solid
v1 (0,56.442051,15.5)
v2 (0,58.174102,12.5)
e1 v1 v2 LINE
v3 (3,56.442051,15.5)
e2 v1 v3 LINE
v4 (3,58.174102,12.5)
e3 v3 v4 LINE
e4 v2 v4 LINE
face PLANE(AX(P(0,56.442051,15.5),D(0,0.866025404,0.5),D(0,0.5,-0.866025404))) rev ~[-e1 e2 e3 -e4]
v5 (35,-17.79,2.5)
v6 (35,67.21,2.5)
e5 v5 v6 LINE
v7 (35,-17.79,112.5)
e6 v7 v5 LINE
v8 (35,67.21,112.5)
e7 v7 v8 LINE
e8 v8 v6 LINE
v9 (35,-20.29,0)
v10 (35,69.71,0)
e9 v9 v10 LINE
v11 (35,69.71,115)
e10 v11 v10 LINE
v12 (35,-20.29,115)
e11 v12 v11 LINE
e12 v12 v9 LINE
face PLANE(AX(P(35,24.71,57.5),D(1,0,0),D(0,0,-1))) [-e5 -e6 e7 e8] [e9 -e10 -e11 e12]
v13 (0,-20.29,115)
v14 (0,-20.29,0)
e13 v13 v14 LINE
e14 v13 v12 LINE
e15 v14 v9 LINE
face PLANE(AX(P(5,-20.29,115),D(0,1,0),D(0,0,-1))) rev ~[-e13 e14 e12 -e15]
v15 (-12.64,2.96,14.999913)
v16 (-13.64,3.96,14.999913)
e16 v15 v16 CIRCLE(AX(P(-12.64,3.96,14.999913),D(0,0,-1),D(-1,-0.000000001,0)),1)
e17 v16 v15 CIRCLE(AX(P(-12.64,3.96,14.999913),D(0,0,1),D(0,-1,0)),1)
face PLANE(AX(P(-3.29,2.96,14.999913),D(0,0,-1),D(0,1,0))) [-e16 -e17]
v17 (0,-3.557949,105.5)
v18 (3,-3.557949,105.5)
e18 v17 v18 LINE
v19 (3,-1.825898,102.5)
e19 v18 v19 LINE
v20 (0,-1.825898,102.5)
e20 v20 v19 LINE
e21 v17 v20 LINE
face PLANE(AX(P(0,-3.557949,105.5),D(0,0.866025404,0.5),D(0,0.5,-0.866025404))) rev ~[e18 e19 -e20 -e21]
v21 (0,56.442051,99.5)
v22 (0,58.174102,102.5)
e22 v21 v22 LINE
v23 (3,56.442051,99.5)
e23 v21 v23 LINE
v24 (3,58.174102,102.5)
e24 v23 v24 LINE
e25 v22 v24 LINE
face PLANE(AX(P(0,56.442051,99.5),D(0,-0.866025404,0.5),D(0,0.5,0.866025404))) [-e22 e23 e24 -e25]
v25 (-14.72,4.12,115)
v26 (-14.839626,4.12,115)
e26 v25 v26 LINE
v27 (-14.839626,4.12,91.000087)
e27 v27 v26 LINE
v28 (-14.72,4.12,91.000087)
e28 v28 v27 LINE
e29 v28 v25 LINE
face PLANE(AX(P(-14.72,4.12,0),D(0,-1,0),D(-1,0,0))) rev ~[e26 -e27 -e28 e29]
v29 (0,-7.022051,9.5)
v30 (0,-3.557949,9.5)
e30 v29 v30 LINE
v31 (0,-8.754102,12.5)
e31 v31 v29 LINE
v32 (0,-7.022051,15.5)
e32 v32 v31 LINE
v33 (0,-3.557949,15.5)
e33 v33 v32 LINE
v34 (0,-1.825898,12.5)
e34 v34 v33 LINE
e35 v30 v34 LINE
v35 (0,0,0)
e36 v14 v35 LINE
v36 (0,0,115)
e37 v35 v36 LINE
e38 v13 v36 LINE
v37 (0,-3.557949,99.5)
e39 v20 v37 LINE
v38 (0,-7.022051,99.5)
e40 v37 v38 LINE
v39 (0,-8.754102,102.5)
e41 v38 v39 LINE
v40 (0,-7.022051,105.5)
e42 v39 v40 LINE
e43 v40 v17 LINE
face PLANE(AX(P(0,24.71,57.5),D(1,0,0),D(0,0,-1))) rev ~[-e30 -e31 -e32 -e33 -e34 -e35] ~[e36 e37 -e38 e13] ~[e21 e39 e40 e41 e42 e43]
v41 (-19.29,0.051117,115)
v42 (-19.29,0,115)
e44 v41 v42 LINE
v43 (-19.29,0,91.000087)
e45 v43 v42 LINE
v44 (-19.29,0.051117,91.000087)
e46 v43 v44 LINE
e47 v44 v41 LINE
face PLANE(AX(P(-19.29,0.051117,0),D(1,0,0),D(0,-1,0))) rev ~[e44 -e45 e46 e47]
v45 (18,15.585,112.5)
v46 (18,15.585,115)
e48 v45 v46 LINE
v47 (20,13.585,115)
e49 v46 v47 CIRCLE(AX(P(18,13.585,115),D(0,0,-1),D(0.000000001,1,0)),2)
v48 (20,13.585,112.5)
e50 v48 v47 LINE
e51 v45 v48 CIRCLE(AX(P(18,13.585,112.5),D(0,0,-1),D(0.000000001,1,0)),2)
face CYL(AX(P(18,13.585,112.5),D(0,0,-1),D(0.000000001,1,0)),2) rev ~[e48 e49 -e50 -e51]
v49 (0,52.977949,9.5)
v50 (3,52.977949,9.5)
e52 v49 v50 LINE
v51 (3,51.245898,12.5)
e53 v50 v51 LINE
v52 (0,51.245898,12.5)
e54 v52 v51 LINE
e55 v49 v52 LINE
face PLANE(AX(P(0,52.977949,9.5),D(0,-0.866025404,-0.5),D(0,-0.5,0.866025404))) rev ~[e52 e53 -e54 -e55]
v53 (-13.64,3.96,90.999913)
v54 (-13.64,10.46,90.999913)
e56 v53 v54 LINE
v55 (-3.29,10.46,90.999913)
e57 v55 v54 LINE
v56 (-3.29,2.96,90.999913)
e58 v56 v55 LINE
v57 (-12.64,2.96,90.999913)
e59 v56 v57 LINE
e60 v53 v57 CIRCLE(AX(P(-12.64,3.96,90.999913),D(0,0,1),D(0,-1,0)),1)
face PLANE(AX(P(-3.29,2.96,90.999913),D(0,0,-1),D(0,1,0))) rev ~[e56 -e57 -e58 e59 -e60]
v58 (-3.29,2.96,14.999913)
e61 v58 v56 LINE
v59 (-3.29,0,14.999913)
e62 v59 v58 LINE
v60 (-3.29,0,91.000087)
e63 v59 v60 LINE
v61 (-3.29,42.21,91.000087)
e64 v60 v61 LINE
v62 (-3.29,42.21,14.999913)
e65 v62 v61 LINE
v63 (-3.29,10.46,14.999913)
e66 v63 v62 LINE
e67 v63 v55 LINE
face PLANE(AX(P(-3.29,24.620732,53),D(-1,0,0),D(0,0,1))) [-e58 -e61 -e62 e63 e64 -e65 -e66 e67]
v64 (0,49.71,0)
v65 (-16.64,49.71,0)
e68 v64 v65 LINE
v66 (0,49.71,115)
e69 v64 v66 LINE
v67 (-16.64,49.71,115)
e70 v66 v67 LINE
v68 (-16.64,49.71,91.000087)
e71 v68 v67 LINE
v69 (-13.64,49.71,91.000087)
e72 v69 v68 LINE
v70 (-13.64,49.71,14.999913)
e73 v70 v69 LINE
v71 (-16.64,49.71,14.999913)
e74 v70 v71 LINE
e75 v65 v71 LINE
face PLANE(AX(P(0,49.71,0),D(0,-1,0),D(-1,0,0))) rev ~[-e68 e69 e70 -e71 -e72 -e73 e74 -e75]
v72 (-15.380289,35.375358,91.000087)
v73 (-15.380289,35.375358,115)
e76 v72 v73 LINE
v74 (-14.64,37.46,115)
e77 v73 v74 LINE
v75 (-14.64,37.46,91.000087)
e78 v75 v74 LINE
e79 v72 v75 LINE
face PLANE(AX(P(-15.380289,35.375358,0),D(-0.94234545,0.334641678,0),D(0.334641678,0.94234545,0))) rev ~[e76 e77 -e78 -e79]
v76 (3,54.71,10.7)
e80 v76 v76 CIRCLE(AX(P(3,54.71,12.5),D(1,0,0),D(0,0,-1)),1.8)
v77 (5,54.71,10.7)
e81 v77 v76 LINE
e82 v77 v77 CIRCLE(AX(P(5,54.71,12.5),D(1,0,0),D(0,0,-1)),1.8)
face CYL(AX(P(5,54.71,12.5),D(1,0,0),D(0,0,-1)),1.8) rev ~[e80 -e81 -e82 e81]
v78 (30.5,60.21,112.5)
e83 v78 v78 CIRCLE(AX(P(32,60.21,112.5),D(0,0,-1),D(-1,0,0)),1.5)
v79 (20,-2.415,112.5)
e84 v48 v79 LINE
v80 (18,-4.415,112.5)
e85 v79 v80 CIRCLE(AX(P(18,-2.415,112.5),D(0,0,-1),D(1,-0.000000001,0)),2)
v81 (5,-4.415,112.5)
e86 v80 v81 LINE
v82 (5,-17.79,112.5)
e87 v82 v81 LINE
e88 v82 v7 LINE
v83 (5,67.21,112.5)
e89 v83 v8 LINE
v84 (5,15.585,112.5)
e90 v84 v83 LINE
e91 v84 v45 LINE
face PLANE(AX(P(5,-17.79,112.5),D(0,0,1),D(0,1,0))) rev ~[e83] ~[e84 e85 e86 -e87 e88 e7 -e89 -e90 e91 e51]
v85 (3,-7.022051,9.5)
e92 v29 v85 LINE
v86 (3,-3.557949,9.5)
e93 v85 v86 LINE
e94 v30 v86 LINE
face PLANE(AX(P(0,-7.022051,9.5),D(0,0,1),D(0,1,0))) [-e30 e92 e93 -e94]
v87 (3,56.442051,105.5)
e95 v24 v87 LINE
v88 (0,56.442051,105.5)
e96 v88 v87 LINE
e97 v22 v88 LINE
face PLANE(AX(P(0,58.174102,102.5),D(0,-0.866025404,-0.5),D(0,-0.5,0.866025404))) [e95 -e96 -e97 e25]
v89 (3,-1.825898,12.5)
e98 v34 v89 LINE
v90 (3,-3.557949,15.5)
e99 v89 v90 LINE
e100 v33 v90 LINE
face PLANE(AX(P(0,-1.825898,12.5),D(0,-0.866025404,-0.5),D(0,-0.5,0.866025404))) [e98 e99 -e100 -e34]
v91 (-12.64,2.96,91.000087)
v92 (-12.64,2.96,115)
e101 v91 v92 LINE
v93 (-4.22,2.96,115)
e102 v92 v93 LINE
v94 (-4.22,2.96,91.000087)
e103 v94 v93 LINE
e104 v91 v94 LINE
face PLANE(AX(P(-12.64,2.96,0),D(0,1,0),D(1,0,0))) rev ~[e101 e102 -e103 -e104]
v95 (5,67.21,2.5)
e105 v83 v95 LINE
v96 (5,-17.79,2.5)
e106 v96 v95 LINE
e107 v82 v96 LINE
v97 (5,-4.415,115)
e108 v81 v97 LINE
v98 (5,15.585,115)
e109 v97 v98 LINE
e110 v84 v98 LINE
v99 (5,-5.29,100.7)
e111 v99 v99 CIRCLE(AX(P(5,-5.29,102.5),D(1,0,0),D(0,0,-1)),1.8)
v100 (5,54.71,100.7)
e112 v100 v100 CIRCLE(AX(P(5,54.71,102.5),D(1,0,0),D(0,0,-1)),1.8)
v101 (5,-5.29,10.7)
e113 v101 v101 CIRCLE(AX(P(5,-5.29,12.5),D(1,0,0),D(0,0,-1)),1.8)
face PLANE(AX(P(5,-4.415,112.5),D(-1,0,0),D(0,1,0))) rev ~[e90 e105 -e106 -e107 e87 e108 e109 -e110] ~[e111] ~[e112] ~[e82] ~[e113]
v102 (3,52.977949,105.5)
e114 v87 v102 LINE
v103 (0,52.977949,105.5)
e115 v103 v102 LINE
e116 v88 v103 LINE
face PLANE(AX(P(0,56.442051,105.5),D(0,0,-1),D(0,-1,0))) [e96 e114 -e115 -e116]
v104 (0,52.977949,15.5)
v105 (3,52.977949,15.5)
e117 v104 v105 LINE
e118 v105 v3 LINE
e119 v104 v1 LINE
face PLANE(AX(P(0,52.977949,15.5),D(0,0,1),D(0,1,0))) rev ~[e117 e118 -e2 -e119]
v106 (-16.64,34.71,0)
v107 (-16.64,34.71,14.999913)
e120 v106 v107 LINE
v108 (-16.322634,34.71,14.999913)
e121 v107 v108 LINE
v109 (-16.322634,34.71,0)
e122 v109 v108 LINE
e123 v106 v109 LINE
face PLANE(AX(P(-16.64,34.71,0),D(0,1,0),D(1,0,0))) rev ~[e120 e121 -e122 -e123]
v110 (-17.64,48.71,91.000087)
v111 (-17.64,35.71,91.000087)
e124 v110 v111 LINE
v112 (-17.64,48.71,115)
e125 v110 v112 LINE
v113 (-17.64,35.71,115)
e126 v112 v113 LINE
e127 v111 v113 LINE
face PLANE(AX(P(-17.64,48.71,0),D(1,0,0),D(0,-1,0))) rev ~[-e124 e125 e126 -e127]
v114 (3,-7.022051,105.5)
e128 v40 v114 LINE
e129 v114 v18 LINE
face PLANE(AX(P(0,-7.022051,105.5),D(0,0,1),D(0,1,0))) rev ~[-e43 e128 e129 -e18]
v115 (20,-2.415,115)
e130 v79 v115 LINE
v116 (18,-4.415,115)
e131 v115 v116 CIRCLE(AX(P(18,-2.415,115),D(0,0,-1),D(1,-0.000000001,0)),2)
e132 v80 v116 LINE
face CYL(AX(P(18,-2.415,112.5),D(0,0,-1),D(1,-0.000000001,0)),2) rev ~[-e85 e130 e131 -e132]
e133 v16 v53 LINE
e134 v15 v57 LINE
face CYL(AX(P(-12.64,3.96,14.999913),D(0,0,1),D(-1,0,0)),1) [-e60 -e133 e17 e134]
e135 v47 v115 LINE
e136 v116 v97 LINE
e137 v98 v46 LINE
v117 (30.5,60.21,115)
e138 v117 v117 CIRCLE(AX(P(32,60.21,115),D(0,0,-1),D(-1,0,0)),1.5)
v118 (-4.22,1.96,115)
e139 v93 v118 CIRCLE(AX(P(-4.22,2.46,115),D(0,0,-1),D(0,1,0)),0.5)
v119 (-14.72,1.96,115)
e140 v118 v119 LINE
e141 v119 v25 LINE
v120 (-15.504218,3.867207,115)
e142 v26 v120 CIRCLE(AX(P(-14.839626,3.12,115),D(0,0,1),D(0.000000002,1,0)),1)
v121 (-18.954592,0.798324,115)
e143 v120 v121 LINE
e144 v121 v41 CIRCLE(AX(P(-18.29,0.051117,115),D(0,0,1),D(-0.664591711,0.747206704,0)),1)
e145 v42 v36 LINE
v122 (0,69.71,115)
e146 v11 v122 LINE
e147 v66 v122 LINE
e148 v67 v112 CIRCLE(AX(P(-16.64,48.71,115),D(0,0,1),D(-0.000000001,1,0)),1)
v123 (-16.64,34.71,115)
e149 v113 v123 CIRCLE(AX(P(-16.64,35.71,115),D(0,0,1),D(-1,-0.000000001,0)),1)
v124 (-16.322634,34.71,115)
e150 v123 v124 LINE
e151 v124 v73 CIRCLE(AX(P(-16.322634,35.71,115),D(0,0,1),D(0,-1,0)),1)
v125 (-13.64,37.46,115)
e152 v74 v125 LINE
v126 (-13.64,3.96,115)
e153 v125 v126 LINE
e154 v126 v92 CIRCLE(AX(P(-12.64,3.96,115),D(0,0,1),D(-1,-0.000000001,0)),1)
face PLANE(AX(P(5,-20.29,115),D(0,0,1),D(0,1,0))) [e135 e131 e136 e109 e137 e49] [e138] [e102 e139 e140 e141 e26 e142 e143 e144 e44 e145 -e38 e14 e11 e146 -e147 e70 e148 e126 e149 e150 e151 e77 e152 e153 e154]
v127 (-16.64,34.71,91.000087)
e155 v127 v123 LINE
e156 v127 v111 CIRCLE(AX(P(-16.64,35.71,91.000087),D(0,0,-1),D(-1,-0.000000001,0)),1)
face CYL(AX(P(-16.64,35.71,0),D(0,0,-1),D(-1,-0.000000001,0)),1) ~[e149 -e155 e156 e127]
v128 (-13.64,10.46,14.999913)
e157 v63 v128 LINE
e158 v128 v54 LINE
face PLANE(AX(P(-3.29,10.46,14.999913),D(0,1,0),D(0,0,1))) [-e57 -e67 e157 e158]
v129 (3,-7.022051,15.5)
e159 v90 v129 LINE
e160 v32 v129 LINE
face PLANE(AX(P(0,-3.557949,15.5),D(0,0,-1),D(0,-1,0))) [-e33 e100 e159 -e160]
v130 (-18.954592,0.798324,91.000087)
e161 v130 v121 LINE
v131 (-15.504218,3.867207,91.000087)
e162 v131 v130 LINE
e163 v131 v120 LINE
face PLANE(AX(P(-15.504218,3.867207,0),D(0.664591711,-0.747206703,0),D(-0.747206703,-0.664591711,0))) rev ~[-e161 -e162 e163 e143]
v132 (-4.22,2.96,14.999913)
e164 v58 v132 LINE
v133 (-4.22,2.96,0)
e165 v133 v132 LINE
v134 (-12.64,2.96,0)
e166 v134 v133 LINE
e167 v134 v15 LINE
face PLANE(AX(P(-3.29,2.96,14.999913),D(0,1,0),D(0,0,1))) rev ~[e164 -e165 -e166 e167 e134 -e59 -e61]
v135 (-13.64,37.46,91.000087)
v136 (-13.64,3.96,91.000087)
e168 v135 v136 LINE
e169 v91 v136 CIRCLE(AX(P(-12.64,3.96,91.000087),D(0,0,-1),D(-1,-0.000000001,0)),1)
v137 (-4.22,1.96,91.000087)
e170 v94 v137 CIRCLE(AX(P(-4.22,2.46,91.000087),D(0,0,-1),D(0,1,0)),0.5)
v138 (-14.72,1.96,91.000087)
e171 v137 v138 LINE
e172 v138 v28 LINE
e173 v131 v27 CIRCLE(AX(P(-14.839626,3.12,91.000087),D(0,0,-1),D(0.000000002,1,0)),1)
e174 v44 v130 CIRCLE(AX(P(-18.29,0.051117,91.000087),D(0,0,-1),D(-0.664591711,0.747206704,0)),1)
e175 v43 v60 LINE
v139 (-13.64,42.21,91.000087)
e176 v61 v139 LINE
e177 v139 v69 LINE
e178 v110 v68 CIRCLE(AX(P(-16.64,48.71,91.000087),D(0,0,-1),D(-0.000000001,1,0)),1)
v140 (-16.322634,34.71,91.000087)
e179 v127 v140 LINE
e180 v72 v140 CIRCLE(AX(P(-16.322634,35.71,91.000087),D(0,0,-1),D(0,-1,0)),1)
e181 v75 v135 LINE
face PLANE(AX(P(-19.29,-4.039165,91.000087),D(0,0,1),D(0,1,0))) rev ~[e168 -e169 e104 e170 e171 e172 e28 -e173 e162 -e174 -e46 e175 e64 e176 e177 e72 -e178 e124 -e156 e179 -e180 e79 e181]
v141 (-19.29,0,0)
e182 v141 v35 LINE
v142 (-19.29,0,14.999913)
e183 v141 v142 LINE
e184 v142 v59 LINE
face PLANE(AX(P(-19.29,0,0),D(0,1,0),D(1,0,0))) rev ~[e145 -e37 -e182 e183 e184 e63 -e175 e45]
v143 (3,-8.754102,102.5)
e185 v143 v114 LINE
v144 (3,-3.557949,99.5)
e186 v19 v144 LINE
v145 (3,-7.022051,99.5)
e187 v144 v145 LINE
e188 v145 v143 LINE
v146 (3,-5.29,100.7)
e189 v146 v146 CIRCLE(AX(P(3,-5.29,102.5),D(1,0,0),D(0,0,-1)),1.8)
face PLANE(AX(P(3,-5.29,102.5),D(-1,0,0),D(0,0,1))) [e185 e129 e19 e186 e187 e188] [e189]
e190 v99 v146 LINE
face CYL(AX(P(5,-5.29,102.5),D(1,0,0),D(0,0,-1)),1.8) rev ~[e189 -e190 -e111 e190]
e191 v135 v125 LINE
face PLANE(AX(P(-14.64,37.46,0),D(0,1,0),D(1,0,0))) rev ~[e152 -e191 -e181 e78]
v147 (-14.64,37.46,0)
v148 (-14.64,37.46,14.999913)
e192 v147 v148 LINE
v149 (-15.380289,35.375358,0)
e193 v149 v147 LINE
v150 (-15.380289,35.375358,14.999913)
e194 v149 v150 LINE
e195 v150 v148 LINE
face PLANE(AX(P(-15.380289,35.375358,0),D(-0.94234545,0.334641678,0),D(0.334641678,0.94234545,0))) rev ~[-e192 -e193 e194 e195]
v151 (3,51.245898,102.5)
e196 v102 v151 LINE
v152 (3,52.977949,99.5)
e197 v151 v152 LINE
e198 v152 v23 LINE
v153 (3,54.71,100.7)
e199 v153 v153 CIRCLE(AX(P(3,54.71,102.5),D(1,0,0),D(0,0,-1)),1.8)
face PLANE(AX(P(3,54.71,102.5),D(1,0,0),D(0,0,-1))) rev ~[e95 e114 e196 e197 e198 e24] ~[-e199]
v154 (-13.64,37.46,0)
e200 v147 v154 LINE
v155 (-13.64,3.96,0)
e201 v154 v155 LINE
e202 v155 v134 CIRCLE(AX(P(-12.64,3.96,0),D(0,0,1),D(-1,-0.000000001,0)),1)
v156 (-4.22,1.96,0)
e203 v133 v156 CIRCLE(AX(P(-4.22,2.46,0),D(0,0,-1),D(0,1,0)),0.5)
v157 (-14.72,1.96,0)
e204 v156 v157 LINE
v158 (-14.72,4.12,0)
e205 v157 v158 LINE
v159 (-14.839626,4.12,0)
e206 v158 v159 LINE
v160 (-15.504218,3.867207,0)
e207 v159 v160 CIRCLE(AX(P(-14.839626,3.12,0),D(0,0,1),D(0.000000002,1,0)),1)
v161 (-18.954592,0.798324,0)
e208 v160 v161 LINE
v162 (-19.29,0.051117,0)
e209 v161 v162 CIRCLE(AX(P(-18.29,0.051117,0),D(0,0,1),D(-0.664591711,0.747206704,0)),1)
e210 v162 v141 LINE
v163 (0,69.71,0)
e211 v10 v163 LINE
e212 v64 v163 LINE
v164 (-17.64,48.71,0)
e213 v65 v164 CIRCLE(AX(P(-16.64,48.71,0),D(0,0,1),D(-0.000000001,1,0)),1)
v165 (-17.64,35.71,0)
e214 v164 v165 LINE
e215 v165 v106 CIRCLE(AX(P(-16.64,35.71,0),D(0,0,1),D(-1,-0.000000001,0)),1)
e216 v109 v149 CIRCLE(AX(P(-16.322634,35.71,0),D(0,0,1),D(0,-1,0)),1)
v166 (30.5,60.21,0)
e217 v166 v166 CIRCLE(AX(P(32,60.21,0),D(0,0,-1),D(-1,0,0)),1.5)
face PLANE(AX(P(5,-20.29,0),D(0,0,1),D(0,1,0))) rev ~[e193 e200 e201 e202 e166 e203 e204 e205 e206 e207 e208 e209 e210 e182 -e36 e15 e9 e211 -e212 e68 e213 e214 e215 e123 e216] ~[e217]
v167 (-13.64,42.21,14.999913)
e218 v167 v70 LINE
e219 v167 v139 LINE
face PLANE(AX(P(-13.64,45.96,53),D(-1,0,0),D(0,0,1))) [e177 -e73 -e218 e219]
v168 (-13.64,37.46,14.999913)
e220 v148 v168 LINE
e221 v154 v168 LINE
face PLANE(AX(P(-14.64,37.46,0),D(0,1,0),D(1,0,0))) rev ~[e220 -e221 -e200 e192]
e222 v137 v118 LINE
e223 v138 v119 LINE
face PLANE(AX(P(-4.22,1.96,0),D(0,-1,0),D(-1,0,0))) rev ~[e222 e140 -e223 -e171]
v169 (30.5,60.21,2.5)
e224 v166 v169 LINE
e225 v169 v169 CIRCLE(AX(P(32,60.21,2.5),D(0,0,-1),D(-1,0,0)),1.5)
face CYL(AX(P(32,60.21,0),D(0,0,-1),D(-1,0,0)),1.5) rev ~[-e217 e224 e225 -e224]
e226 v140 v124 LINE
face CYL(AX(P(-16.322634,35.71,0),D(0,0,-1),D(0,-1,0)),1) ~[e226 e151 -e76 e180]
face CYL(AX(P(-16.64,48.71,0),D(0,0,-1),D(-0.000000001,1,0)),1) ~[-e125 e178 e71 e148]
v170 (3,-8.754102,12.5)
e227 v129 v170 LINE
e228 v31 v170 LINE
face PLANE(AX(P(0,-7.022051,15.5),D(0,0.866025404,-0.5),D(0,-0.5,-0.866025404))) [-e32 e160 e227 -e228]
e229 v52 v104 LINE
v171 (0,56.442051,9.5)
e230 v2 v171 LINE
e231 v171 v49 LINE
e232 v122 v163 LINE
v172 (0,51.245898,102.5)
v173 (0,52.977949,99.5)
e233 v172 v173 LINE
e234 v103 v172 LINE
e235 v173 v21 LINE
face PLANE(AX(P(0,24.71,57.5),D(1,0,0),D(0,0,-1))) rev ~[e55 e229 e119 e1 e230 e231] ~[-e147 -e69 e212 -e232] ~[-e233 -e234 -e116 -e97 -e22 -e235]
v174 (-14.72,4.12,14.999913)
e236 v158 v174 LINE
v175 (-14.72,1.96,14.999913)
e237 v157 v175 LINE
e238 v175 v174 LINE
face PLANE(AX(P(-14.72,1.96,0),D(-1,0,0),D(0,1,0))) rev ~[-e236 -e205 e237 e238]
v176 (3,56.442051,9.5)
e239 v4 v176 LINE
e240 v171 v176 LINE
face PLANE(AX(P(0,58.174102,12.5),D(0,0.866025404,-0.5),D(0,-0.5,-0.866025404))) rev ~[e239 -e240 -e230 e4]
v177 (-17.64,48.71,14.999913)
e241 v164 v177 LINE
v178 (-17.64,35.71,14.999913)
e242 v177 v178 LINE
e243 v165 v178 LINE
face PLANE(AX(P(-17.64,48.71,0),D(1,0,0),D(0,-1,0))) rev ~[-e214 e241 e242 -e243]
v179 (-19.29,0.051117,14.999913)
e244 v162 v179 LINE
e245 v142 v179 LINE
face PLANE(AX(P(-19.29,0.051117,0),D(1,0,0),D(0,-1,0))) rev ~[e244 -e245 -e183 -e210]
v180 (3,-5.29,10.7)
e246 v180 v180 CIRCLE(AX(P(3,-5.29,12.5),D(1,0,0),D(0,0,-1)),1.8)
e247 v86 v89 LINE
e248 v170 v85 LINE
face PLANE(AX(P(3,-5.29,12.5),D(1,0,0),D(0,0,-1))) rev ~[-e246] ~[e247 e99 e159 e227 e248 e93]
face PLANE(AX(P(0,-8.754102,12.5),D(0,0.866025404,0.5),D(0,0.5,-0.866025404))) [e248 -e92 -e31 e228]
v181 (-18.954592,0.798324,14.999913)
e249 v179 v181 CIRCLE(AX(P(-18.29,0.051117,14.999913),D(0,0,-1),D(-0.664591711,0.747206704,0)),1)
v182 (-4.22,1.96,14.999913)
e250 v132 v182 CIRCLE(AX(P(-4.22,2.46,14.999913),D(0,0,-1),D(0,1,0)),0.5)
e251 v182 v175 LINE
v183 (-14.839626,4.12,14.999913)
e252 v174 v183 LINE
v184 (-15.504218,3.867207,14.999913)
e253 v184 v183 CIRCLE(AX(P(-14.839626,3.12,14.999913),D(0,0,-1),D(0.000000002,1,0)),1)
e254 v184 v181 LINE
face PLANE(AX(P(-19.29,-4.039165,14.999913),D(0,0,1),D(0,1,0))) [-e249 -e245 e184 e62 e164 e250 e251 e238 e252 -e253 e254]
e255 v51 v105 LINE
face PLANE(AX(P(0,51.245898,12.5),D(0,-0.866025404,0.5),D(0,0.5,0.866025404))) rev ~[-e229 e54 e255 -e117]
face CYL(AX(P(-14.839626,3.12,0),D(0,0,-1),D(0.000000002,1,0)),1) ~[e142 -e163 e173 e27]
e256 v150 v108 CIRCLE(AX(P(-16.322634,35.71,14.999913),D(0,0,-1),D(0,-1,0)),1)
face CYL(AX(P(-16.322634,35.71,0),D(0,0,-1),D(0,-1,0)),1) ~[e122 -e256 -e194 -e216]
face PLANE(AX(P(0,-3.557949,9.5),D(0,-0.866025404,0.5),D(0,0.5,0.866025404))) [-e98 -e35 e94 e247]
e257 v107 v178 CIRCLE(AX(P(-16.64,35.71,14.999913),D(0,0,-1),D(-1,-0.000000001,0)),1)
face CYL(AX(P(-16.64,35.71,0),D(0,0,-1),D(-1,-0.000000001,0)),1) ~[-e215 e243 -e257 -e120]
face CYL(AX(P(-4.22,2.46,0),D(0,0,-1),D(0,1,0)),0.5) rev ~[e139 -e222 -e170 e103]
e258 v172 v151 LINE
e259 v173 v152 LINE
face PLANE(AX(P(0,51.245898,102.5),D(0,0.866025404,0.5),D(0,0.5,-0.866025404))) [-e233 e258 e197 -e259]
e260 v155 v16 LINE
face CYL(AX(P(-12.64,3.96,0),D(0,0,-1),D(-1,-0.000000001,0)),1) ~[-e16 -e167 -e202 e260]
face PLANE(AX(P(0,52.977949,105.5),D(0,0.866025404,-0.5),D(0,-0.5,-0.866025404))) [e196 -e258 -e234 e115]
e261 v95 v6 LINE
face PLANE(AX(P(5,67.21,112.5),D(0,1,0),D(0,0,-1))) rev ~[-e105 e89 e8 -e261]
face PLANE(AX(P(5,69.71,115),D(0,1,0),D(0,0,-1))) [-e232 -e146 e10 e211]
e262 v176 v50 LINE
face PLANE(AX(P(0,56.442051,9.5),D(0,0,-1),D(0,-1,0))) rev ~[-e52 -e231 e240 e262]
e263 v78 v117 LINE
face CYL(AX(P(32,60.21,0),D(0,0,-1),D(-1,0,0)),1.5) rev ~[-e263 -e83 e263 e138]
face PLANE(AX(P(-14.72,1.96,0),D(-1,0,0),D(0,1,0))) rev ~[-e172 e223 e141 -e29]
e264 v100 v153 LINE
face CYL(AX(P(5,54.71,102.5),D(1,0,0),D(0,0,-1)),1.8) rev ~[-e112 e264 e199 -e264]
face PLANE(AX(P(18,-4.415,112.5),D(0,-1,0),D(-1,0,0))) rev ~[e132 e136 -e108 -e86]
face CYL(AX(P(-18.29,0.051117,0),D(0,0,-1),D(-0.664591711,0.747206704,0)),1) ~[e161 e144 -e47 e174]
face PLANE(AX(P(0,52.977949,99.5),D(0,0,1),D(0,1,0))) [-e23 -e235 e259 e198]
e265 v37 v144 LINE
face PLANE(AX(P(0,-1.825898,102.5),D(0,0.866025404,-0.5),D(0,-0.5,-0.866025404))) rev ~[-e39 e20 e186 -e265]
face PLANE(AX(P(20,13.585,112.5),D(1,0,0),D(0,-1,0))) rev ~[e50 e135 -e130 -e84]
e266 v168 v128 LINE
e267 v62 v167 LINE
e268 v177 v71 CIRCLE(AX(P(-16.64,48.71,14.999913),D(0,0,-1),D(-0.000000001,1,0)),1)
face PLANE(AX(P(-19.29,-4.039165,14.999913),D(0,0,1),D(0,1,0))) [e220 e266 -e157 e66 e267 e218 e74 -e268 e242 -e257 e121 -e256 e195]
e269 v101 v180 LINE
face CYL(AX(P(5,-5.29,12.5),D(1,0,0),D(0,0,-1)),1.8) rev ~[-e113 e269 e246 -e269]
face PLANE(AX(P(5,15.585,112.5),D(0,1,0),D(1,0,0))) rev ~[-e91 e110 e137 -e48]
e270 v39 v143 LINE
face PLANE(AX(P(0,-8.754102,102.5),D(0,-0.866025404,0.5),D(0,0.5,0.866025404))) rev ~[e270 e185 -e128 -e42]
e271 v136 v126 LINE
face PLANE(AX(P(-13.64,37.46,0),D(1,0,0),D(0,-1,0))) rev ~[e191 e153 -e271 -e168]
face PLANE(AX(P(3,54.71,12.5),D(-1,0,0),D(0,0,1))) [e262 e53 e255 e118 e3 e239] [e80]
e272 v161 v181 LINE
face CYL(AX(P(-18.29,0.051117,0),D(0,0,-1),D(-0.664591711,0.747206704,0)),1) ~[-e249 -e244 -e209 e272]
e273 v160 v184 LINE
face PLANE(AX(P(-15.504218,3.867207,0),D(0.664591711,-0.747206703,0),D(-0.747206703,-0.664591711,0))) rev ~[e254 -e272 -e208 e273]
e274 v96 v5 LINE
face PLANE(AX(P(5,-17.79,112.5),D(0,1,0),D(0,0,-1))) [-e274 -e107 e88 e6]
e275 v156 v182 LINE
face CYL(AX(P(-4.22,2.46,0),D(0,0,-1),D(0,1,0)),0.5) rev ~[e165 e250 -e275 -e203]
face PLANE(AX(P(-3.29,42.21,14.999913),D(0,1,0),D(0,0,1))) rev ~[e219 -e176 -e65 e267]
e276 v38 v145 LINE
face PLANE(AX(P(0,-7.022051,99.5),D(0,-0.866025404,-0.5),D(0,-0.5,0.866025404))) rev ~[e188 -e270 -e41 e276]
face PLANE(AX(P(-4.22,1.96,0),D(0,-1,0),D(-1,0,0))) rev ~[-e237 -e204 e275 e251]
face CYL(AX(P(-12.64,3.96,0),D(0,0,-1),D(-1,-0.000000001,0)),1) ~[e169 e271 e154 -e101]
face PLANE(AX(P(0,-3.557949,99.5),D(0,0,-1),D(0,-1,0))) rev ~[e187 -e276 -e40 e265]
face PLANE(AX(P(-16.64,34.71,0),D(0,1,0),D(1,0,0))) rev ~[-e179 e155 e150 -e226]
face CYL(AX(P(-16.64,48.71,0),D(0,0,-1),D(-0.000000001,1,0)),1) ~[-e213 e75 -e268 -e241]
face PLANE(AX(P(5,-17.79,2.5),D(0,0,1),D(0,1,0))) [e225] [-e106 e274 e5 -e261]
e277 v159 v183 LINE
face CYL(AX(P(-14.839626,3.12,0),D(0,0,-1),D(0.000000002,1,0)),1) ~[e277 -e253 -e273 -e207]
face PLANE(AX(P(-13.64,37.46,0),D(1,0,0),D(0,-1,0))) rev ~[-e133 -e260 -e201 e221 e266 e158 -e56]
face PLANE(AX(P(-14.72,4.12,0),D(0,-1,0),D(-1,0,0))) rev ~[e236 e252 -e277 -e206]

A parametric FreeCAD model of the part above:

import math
import FreeCAD as App
import Part
import Sketcher

V = App.Vector
Q = App.Units.Quantity


def edges_at(feature, points):
    """Names of the edges that pass closest to the given points."""
    edges = feature.Shape.Edges
    near = lambda p: min(range(len(edges)), key=lambda i: edges[i].distToShape(Part.Vertex(*p))[0])
    return sorted({f"Edge{near(p) + 1}" for p in points})


def add_polygon(sketch, points):
    """Adds a closed chain of lines whose ends are joined by coincident constraints."""
    first, n = sketch.GeometryCount, len(points)
    for a, b in zip(points, points[1:] + points[:1]):
        sketch.addGeometry(Part.LineSegment(App.Vector(*a, 0), App.Vector(*b, 0)), False)
    for i in range(n):
        sketch.addConstraint(Sketcher.Constraint("Coincident", first + i, 2, first + (i + 1) % n, 1))

doc = App.newDocument("Part")
params = doc.addObject("Spreadsheet::Sheet", "Params")
for row, (alias, value) in enumerate([
    ("sketch1_radius", "1 mm"),
    ("sketch1_radius2", "0.5 mm"),
    ("sketch1_width", "1 mm"),
    ("sketch1_height", "13 mm"),
    ("sketch1_width2", "10.5 mm"),
    ("pad1_length", "115 mm"),
    ("pocket1_length", "16 mm"),
    ("sketch3_height", "76 mm"),
    ("sketch3_width", "7.5 mm"),
    ("pad2_length", "10.35 mm"),
    ("fillet_radius", "1 mm"),
    ("sketch4_width", "90 mm"),
    ("sketch4_height", "115 mm"),
    ("pad3_length", "5 mm"),
    ("sketch5_width", "90 mm"),
    ("sketch5_width2", "85 mm"),
    ("sketch5_height", "115 mm"),
    ("sketch5_height2", "110 mm"),
    ("pad4_length", "30 mm"),
    ("sketch6_diameter", "3.6 mm"),
    ("sketch7_diameter", "3.6 mm"),
    ("sketch8_diameter", "3.6 mm"),
    ("sketch9_diameter", "3.6 mm"),
    ("sketch10_radius", "2 mm"),
    ("sketch10_width", "13 mm"),
    ("sketch10_height", "20 mm"),
    ("pocket7_length", "3 mm"),
    ("sketch12_diameter", "3 mm"),
], start=1):
    params.set(f"A{row}", alias)
    params.set(f"B{row}", "=" + value)
    params.setAlias(f"B{row}", alias)

body = doc.addObject("PartDesign::Body", "Body")

# Sketch on XY plane
sketch1 = body.newObject("Sketcher::SketchObject", "Sketch")
sketch1.AttachmentSupport = (doc.getObject("XY_Plane"), [""])
sketch1.MapMode = "FlatFace"
sketch1.addGeometry(Part.LineSegment(V(0, 49.71, 0), V(-16.64, 49.71, 0)), False)
sketch1.addGeometry(Part.ArcOfCircle(Part.Circle(V(-16.64, 48.71, 0), V(0, 0, 1), 1), math.radians(90), math.radians(180)), False)
sketch1.addGeometry(Part.LineSegment(V(-17.64, 48.71, 0), V(-17.64, 35.71, 0)), False)
sketch1.addGeometry(Part.ArcOfCircle(Part.Circle(V(-16.64, 35.71, 0), V(0, 0, 1), 1), math.radians(-180), math.radians(-90)), False)
sketch1.addGeometry(Part.LineSegment(V(-16.64, 34.71, 0), V(-16.322634, 34.71, 0)), False)
sketch1.addGeometry(Part.ArcOfCircle(Part.Circle(V(-16.322634, 35.71, 0), V(0, 0, 1), 1), math.radians(-90), math.radians(-19.55075)), False)
sketch1.addGeometry(Part.LineSegment(V(-15.380289, 35.375358, 0), V(-14.64, 37.46, 0)), False)
sketch1.addGeometry(Part.LineSegment(V(-14.64, 37.46, 0), V(-13.64, 37.46, 0)), False)
sketch1.addGeometry(Part.LineSegment(V(-13.64, 37.46, 0), V(-13.64, 3.96, 0)), False)
sketch1.addGeometry(Part.ArcOfCircle(Part.Circle(V(-12.64, 3.96, 0), V(0, 0, 1), 1), math.radians(-180), math.radians(-90)), False)
sketch1.addGeometry(Part.LineSegment(V(-12.64, 2.96, 0), V(-4.22, 2.96, 0)), False)
sketch1.addGeometry(Part.ArcOfCircle(Part.Circle(V(-4.22, 2.46, 0), V(0, 0, 1), 0.5), math.radians(-90), math.radians(90)), False)
sketch1.addGeometry(Part.LineSegment(V(-4.22, 1.96, 0), V(-14.72, 1.96, 0)), False)
sketch1.addGeometry(Part.LineSegment(V(-14.72, 1.96, 0), V(-14.72, 4.12, 0)), False)
sketch1.addGeometry(Part.LineSegment(V(-14.72, 4.12, 0), V(-14.839626, 4.12, 0)), False)
sketch1.addGeometry(Part.ArcOfCircle(Part.Circle(V(-14.839626, 3.12, 0), V(0, 0, 1), 1), math.radians(90), math.radians(131.65101)), False)
sketch1.addGeometry(Part.LineSegment(V(-15.504218, 3.867207, 0), V(-18.954592, 0.798324, 0)), False)
sketch1.addGeometry(Part.ArcOfCircle(Part.Circle(V(-18.29, 0.051117, 0), V(0, 0, 1), 1), math.radians(131.65101), math.radians(180)), False)
sketch1.addGeometry(Part.LineSegment(V(-19.29, 0.051117, 0), V(-19.29, 0, 0)), False)
sketch1.addGeometry(Part.LineSegment(V(-19.29, 0, 0), V(0, 0, 0)), False)
sketch1.addGeometry(Part.LineSegment(V(0, 0, 0), V(0, 49.71, 0)), False)
sketch1.addConstraint(Sketcher.Constraint("Tangent", 0, 2, 1, 1))
sketch1.addConstraint(Sketcher.Constraint("Tangent", 1, 2, 2, 1))
sketch1.addConstraint(Sketcher.Constraint("Tangent", 2, 2, 3, 1))
sketch1.addConstraint(Sketcher.Constraint("Tangent", 3, 2, 4, 1))
sketch1.addConstraint(Sketcher.Constraint("Tangent", 4, 2, 5, 1))
sketch1.addConstraint(Sketcher.Constraint("Tangent", 5, 2, 6, 1))
sketch1.addConstraint(Sketcher.Constraint("Coincident", 6, 2, 7, 1))
sketch1.addConstraint(Sketcher.Constraint("Coincident", 7, 2, 8, 1))
sketch1.addConstraint(Sketcher.Constraint("Tangent", 8, 2, 9, 1))
sketch1.addConstraint(Sketcher.Constraint("Tangent", 9, 2, 10, 1))
sketch1.addConstraint(Sketcher.Constraint("Tangent", 10, 2, 11, 2))
sketch1.addConstraint(Sketcher.Constraint("Tangent", 11, 1, 12, 1))
sketch1.addConstraint(Sketcher.Constraint("Coincident", 12, 2, 13, 1))
sketch1.addConstraint(Sketcher.Constraint("Coincident", 13, 2, 14, 1))
sketch1.addConstraint(Sketcher.Constraint("Tangent", 14, 2, 15, 1))
sketch1.addConstraint(Sketcher.Constraint("Tangent", 15, 2, 16, 1))
sketch1.addConstraint(Sketcher.Constraint("Tangent", 16, 2, 17, 1))
sketch1.addConstraint(Sketcher.Constraint("Tangent", 17, 2, 18, 1))
sketch1.addConstraint(Sketcher.Constraint("Coincident", 18, 2, 19, 1))
sketch1.addConstraint(Sketcher.Constraint("Coincident", 19, 2, 20, 1))
sketch1.addConstraint(Sketcher.Constraint("Coincident", 20, 2, 0, 1))
sketch1.addConstraint(Sketcher.Constraint("Horizontal", 0))
sketch1.addConstraint(Sketcher.Constraint("Vertical", 2))
sketch1.addConstraint(Sketcher.Constraint("Horizontal", 4))
sketch1.addConstraint(Sketcher.Constraint("Horizontal", 7))
sketch1.addConstraint(Sketcher.Constraint("Vertical", 8))
sketch1.addConstraint(Sketcher.Constraint("Horizontal", 10))
sketch1.addConstraint(Sketcher.Constraint("Horizontal", 12))
sketch1.addConstraint(Sketcher.Constraint("Vertical", 13))
sketch1.addConstraint(Sketcher.Constraint("Horizontal", 14))
sketch1.addConstraint(Sketcher.Constraint("Vertical", 18))
sketch1.addConstraint(Sketcher.Constraint("Horizontal", 19))
sketch1.addConstraint(Sketcher.Constraint("Vertical", 20))
sketch1.addConstraint(Sketcher.Constraint("Coincident", 19, 2, -1, 1))
sketch1.addConstraint(Sketcher.Constraint("Equal", 1, 3))
sketch1.addConstraint(Sketcher.Constraint("Equal", 3, 5))
sketch1.addConstraint(Sketcher.Constraint("Equal", 5, 9))
sketch1.addConstraint(Sketcher.Constraint("Equal", 9, 15))
sketch1.addConstraint(Sketcher.Constraint("Equal", 15, 17))
sketch1.addConstraint(Sketcher.Constraint("Radius", 1, Q("1 mm")))
sketch1.addConstraint(Sketcher.Constraint("Radius", 11, Q("0.5 mm")))
sketch1.addConstraint(Sketcher.Constraint("DistanceX", 7, 1, 7, 2, Q("1 mm")))
sketch1.addConstraint(Sketcher.Constraint("DistanceY", 2, 2, 2, 1, Q("13 mm")))
sketch1.addConstraint(Sketcher.Constraint("DistanceX", 12, 2, 12, 1, Q("10.5 mm")))
sketch1.addConstraint(Sketcher.Constraint("DistanceY", 8, 2, 8, 1, Q("33.5 mm")))
sketch1.addConstraint(Sketcher.Constraint("DistanceX", 3, 3, 9, 3, Q("4 mm")))
sketch1.addConstraint(Sketcher.Constraint("DistanceX", 0, 2, 0, 1, Q("16.64 mm")))
sketch1.addConstraint(Sketcher.Constraint("DistanceX", 10, 1, 10, 2, Q("8.42 mm")))
sketch1.addConstraint(Sketcher.Constraint("DistanceX", 19, 1, 19, 2, Q("19.29 mm")))
sketch1.addConstraint(Sketcher.Constraint("DistanceY", 13, 1, 13, 2, Q("2.16 mm")))
sketch1.addConstraint(Sketcher.Constraint("DistanceY", 20, 1, 20, 2, Q("49.71 mm")))
sketch1.addConstraint(Sketcher.Constraint("DistanceY", -1, 1, 9, 3, Q("3.96 mm")))
sketch1.addConstraint(Sketcher.Constraint("DistanceX", 4, 1, 4, 2, Q("0.317366 mm")))
sketch1.addConstraint(Sketcher.Constraint("DistanceX", 14, 2, 14, 1, Q("0.119626 mm")))
sketch1.addConstraint(Sketcher.Constraint("DistanceY", 18, 2, 18, 1, Q("0.051117 mm")))
sketch1.setExpression("Constraints[39]", "Params.sketch1_radius")
sketch1.setExpression("Constraints[40]", "Params.sketch1_radius2")
sketch1.setExpression("Constraints[41]", "Params.sketch1_width")
sketch1.setExpression("Constraints[42]", "Params.sketch1_height")
sketch1.setExpression("Constraints[43]", "Params.sketch1_width2")
pad1 = body.newObject("PartDesign::Pad", "Pad")
pad1.Profile = sketch1
pad1.setExpression("Length", "Params.pad1_length")

# Sketch on YZ plane
sketch2 = body.newObject("Sketcher::SketchObject", "Sketch001")
sketch2.AttachmentSupport = (doc.getObject("YZ_Plane"), [""])
sketch2.MapMode = "FlatFace"
sketch2.AttachmentOffset = App.Placement(V(0, 0, -19.29), App.Rotation())
add_polygon(sketch2, [(53.28063, 14.999913), (-4.039165, 14.999913), (-4.039165, 91.000087), (53.28063, 91.000087)])  # lines 0-3
sketch2.addConstraint(Sketcher.Constraint("Horizontal", 0))
sketch2.addConstraint(Sketcher.Constraint("Vertical", 1))
sketch2.addConstraint(Sketcher.Constraint("Horizontal", 2))
sketch2.addConstraint(Sketcher.Constraint("Vertical", 3))
sketch2.addConstraint(Sketcher.Constraint("DistanceX", 0, 2, 0, 1, Q("57.319795 mm")))
sketch2.addConstraint(Sketcher.Constraint("DistanceY", 1, 1, 1, 2, Q("76.000174 mm")))
sketch2.addConstraint(Sketcher.Constraint("DistanceX", -1, 1, 2, 2, Q("53.28063 mm")))
sketch2.addConstraint(Sketcher.Constraint("DistanceY", -1, 1, 0, 2, Q("14.999913 mm")))
pocket1 = body.newObject("PartDesign::Pocket", "Pocket")
pocket1.Profile = sketch2
pocket1.setExpression("Length", "Params.pocket1_length")
pocket1.Reversed = True

# Sketch on YZ plane
sketch3 = body.newObject("Sketcher::SketchObject", "Sketch002")
sketch3.AttachmentSupport = (doc.getObject("YZ_Plane"), [""])
sketch3.MapMode = "FlatFace"
sketch3.AttachmentOffset = App.Placement(V(0, 0, -3.29), App.Rotation())
add_polygon(sketch3, [(49.71, 14.999913), (42.21, 14.999913), (42.21, 91.000087), (49.71, 91.000087)])  # lines 0-3
add_polygon(sketch3, [(10.46, 14.999913), (2.96, 14.999913), (2.96, 90.999913), (10.46, 90.999913)])  # lines 4-7
sketch3.addConstraint(Sketcher.Constraint("Horizontal", 0))
sketch3.addConstraint(Sketcher.Constraint("Vertical", 1))
sketch3.addConstraint(Sketcher.Constraint("Horizontal", 2))
sketch3.addConstraint(Sketcher.Constraint("Vertical", 3))
sketch3.addConstraint(Sketcher.Constraint("Horizontal", 4))
sketch3.addConstraint(Sketcher.Constraint("Vertical", 5))
sketch3.addConstraint(Sketcher.Constraint("Horizontal", 6))
sketch3.addConstraint(Sketcher.Constraint("Vertical", 7))
sketch3.addConstraint(Sketcher.Constraint("Horizontal", 3, 2, 4, 2))
sketch3.addConstraint(Sketcher.Constraint("Equal", 2, 4))
sketch3.addConstraint(Sketcher.Constraint("DistanceY", 5, 1, 5, 2, Q("76 mm")))
sketch3.addConstraint(Sketcher.Constraint("DistanceX", 0, 2, 0, 1, Q("7.5 mm")))
sketch3.addConstraint(Sketcher.Constraint("DistanceX", -1, 1, 0, 2, Q("42.21 mm")))
sketch3.addConstraint(Sketcher.Constraint("DistanceX", -1, 1, 4, 2, Q("2.96 mm")))
sketch3.addConstraint(Sketcher.Constraint("DistanceY", 1, 1, 1, 2, Q("76.000174 mm")))
sketch3.addConstraint(Sketcher.Constraint("DistanceY", -1, 1, 0, 2, Q("14.999913 mm")))
sketch3.setExpression("Constraints[18]", "Params.sketch3_height")
sketch3.setExpression("Constraints[19]", "Params.sketch3_width")
pad2 = body.newObject("PartDesign::Pad", "Pad001")
pad2.Profile = sketch3
pad2.setExpression("Length", "Params.pad2_length")
pad2.Reversed = True
doc.recompute()

fillet = body.newObject("PartDesign::Fillet", "Fillet")
fillet.Base = (pad2, edges_at(pad2, [(-13.64, 2.96, 53)]))
fillet.setExpression("Radius", "Params.fillet_radius")

# Sketch on YZ plane
sketch4 = body.newObject("Sketcher::SketchObject", "Sketch003")
sketch4.AttachmentSupport = (doc.getObject("YZ_Plane"), [""])
sketch4.MapMode = "FlatFace"
add_polygon(sketch4, [(69.71, 115), (-20.29, 115), (-20.29, 0), (69.71, 0)])  # lines 0-3
sketch4.addConstraint(Sketcher.Constraint("Horizontal", 0))
sketch4.addConstraint(Sketcher.Constraint("Vertical", 1))
sketch4.addConstraint(Sketcher.Constraint("Horizontal", 2))
sketch4.addConstraint(Sketcher.Constraint("Vertical", 3))
sketch4.addConstraint(Sketcher.Constraint("PointOnObject", 1, 2, -1))
sketch4.addConstraint(Sketcher.Constraint("DistanceX", 0, 2, 0, 1, Q("90 mm")))
sketch4.addConstraint(Sketcher.Constraint("DistanceY", 1, 2, 1, 1, Q("115 mm")))
sketch4.addConstraint(Sketcher.Constraint("DistanceX", 0, 2, -1, 1, Q("20.29 mm")))
sketch4.setExpression("Constraints[9]", "Params.sketch4_width")
sketch4.setExpression("Constraints[10]", "Params.sketch4_height")
pad3 = body.newObject("PartDesign::Pad", "Pad002")
pad3.Profile = sketch4
pad3.setExpression("Length", "Params.pad3_length")

# Sketch on YZ plane
sketch5 = body.newObject("Sketcher::SketchObject", "Sketch004")
sketch5.AttachmentSupport = (doc.getObject("YZ_Plane"), [""])
sketch5.MapMode = "FlatFace"
sketch5.AttachmentOffset = App.Placement(V(0, 0, 5), App.Rotation())
add_polygon(sketch5, [(69.71, 115), (-20.29, 115), (-20.29, 0), (69.71, 0)])  # lines 0-3
add_polygon(sketch5, [(-17.79, 2.5), (-17.79, 112.5), (67.21, 112.5), (67.21, 2.5)])  # lines 4-7
sketch5.addConstraint(Sketcher.Constraint("Horizontal", 0))
sketch5.addConstraint(Sketcher.Constraint("Vertical", 1))
sketch5.addConstraint(Sketcher.Constraint("Horizontal", 2))
sketch5.addConstraint(Sketcher.Constraint("Vertical", 3))
sketch5.addConstraint(Sketcher.Constraint("Vertical", 4))
sketch5.addConstraint(Sketcher.Constraint("Horizontal", 5))
sketch5.addConstraint(Sketcher.Constraint("Vertical", 6))
sketch5.addConstraint(Sketcher.Constraint("Horizontal", 7))
sketch5.addConstraint(Sketcher.Constraint("PointOnObject", 1, 2, -1))
sketch5.addConstraint(Sketcher.Constraint("DistanceX", 0, 2, 0, 1, Q("90 mm")))
sketch5.addConstraint(Sketcher.Constraint("DistanceX", 5, 1, 5, 2, Q("85 mm")))
sketch5.addConstraint(Sketcher.Constraint("DistanceY", 1, 2, 1, 1, Q("115 mm")))
sketch5.addConstraint(Sketcher.Constraint("DistanceY", 4, 1, 4, 2, Q("110 mm")))
sketch5.addConstraint(Sketcher.Constraint("DistanceY", -1, 1, 4, 2, Q("112.5 mm")))
sketch5.addConstraint(Sketcher.Constraint("DistanceX", 0, 2, 4, 2, Q("2.5 mm")))
sketch5.addConstraint(Sketcher.Constraint("DistanceX", 0, 2, -1, 1, Q("20.29 mm")))
sketch5.setExpression("Constraints[17]", "Params.sketch5_width")
sketch5.setExpression("Constraints[18]", "Params.sketch5_width2")
sketch5.setExpression("Constraints[19]", "Params.sketch5_height")
sketch5.setExpression("Constraints[20]", "Params.sketch5_height2")
pad4 = body.newObject("PartDesign::Pad", "Pad003")
pad4.Profile = sketch5
pad4.setExpression("Length", "Params.pad4_length")

# Sketch on YZ plane
sketch6 = body.newObject("Sketcher::SketchObject", "Sketch005")
sketch6.AttachmentSupport = (doc.getObject("YZ_Plane"), [""])
sketch6.MapMode = "FlatFace"
sketch6.AttachmentOffset = App.Placement(V(0, 0, 5), App.Rotation())
sketch6.addGeometry(Part.Circle(V(54.71, 102.5, 0), V(0, 0, 1), 1.8), False)
sketch6.addConstraint(Sketcher.Constraint("Diameter", 0, Q("3.6 mm")))
sketch6.addConstraint(Sketcher.Constraint("DistanceY", -1, 1, 0, 3, Q("102.5 mm")))
sketch6.addConstraint(Sketcher.Constraint("DistanceX", -1, 1, 0, 3, Q("54.71 mm")))
sketch6.setExpression("Constraints[0]", "Params.sketch6_diameter")
pocket2 = body.newObject("PartDesign::Pocket", "Pocket001")
pocket2.Profile = sketch6
pocket2.Type = "UpToFirst"

# Sketch on YZ plane
sketch7 = body.newObject("Sketcher::SketchObject", "Sketch006")
sketch7.AttachmentSupport = (doc.getObject("YZ_Plane"), [""])
sketch7.MapMode = "FlatFace"
sketch7.AttachmentOffset = App.Placement(V(0, 0, 5), App.Rotation())
sketch7.addGeometry(Part.Circle(V(-5.29, 102.5, 0), V(0, 0, 1), 1.8), False)
sketch7.addConstraint(Sketcher.Constraint("Diameter", 0, Q("3.6 mm")))
sketch7.addConstraint(Sketcher.Constraint("DistanceY", -1, 1, 0, 3, Q("102.5 mm")))
sketch7.addConstraint(Sketcher.Constraint("DistanceX", 0, 3, -1, 1, Q("5.29 mm")))
sketch7.setExpression("Constraints[0]", "Params.sketch7_diameter")
pocket3 = body.newObject("PartDesign::Pocket", "Pocket002")
pocket3.Profile = sketch7
pocket3.Type = "UpToFirst"

# Sketch on YZ plane
sketch8 = body.newObject("Sketcher::SketchObject", "Sketch007")
sketch8.AttachmentSupport = (doc.getObject("YZ_Plane"), [""])
sketch8.MapMode = "FlatFace"
sketch8.AttachmentOffset = App.Placement(V(0, 0, 5), App.Rotation())
sketch8.addGeometry(Part.Circle(V(-5.29, 12.5, 0), V(0, 0, 1), 1.8), False)
sketch8.addConstraint(Sketcher.Constraint("Diameter", 0, Q("3.6 mm")))
sketch8.addConstraint(Sketcher.Constraint("DistanceY", -1, 1, 0, 3, Q("12.5 mm")))
sketch8.addConstraint(Sketcher.Constraint("DistanceX", 0, 3, -1, 1, Q("5.29 mm")))
sketch8.setExpression("Constraints[0]", "Params.sketch8_diameter")
pocket4 = body.newObject("PartDesign::Pocket", "Pocket003")
pocket4.Profile = sketch8
pocket4.Type = "UpToFirst"

# Sketch on YZ plane
sketch9 = body.newObject("Sketcher::SketchObject", "Sketch008")
sketch9.AttachmentSupport = (doc.getObject("YZ_Plane"), [""])
sketch9.MapMode = "FlatFace"
sketch9.AttachmentOffset = App.Placement(V(0, 0, 5), App.Rotation())
sketch9.addGeometry(Part.Circle(V(54.71, 12.5, 0), V(0, 0, 1), 1.8), False)
sketch9.addConstraint(Sketcher.Constraint("Diameter", 0, Q("3.6 mm")))
sketch9.addConstraint(Sketcher.Constraint("DistanceY", -1, 1, 0, 3, Q("12.5 mm")))
sketch9.addConstraint(Sketcher.Constraint("DistanceX", -1, 1, 0, 3, Q("54.71 mm")))
sketch9.setExpression("Constraints[0]", "Params.sketch9_diameter")
pocket5 = body.newObject("PartDesign::Pocket", "Pocket004")
pocket5.Profile = sketch9
pocket5.Type = "UpToFirst"

# Sketch on XY plane
sketch10 = body.newObject("Sketcher::SketchObject", "Sketch009")
sketch10.AttachmentSupport = (doc.getObject("XY_Plane"), [""])
sketch10.MapMode = "FlatFace"
sketch10.AttachmentOffset = App.Placement(V(0, 0, 112.5), App.Rotation())
sketch10.addGeometry(Part.LineSegment(V(5, -4.415, 0), V(5, 15.585, 0)), False)
sketch10.addGeometry(Part.LineSegment(V(5, 15.585, 0), V(18, 15.585, 0)), False)
sketch10.addGeometry(Part.ArcOfCircle(Part.Circle(V(18, 13.585, 0), V(0, 0, 1), 2), math.radians(0), math.radians(90)), False)
sketch10.addGeometry(Part.LineSegment(V(20, 13.585, 0), V(20, -2.415, 0)), False)
sketch10.addGeometry(Part.ArcOfCircle(Part.Circle(V(18, -2.415, 0), V(0, 0, 1), 2), math.radians(-90), math.radians(0)), False)
sketch10.addGeometry(Part.LineSegment(V(18, -4.415, 0), V(5, -4.415, 0)), False)
sketch10.addConstraint(Sketcher.Constraint("Coincident", 0, 2, 1, 1))
sketch10.addConstraint(Sketcher.Constraint("Tangent", 1, 2, 2, 2))
sketch10.addConstraint(Sketcher.Constraint("Tangent", 2, 1, 3, 1))
sketch10.addConstraint(Sketcher.Constraint("Tangent", 3, 2, 4, 2))
sketch10.addConstraint(Sketcher.Constraint("Tangent", 4, 1, 5, 1))
sketch10.addConstraint(Sketcher.Constraint("Coincident", 5, 2, 0, 1))
sketch10.addConstraint(Sketcher.Constraint("Vertical", 0))
sketch10.addConstraint(Sketcher.Constraint("Horizontal", 1))
sketch10.addConstraint(Sketcher.Constraint("Vertical", 3))
sketch10.addConstraint(Sketcher.Constraint("Horizontal", 5))
sketch10.addConstraint(Sketcher.Constraint("Equal", 2, 4))
sketch10.addConstraint(Sketcher.Constraint("Radius", 2, Q("2 mm")))
sketch10.addConstraint(Sketcher.Constraint("DistanceX", 1, 1, 1, 2, Q("13 mm")))
sketch10.addConstraint(Sketcher.Constraint("DistanceY", 0, 1, 0, 2, Q("20 mm")))
sketch10.addConstraint(Sketcher.Constraint("DistanceX", -1, 1, 2, 3, Q("18 mm")))
sketch10.addConstraint(Sketcher.Constraint("DistanceY", -1, 1, 2, 3, Q("13.585 mm")))
sketch10.setExpression("Constraints[11]", "Params.sketch10_radius")
sketch10.setExpression("Constraints[12]", "Params.sketch10_width")
sketch10.setExpression("Constraints[13]", "Params.sketch10_height")
pocket6 = body.newObject("PartDesign::Pocket", "Pocket005")
pocket6.Profile = sketch10
pocket6.Type = "UpToFirst"
pocket6.Reversed = True

# Sketch on YZ plane
sketch11 = body.newObject("Sketcher::SketchObject", "Sketch010")
sketch11.AttachmentSupport = (doc.getObject("YZ_Plane"), [""])
sketch11.MapMode = "FlatFace"
add_polygon(sketch11, [(51.245898, 12.5), (52.977949, 15.5), (56.442051, 15.5), (58.174102, 12.5), (56.442051, 9.5), (52.977949, 9.5)])  # lines 0-5
add_polygon(sketch11, [(-1.825898, 12.5), (-3.557949, 9.5), (-7.022051, 9.5), (-8.754102, 12.5), (-7.022051, 15.5), (-3.557949, 15.5)])  # lines 6-11
add_polygon(sketch11, [(51.245898, 102.5), (52.977949, 105.5), (56.442051, 105.5), (58.174102, 102.5), (56.442051, 99.5), (52.977949, 99.5)])  # lines 12-17
add_polygon(sketch11, [(-1.825898, 102.5), (-3.557949, 99.5), (-7.022051, 99.5), (-8.754102, 102.5), (-7.022051, 105.5), (-3.557949, 105.5)])  # lines 18-23
sketch11.addConstraint(Sketcher.Constraint("Horizontal", 1))
sketch11.addConstraint(Sketcher.Constraint("Horizontal", 4))
sketch11.addConstraint(Sketcher.Constraint("Horizontal", 7))
sketch11.addConstraint(Sketcher.Constraint("Horizontal", 10))
sketch11.addConstraint(Sketcher.Constraint("Horizontal", 13))
sketch11.addConstraint(Sketcher.Constraint("Horizontal", 16))
sketch11.addConstraint(Sketcher.Constraint("Horizontal", 19))
sketch11.addConstraint(Sketcher.Constraint("Horizontal", 22))
sketch11.addConstraint(Sketcher.Constraint("Parallel", 0, 3))
sketch11.addConstraint(Sketcher.Constraint("Parallel", 2, 5))
sketch11.addConstraint(Sketcher.Constraint("Parallel", 3, 6))
sketch11.addConstraint(Sketcher.Constraint("Parallel", 5, 8))
sketch11.addConstraint(Sketcher.Constraint("Parallel", 6, 9))
sketch11.addConstraint(Sketcher.Constraint("Parallel", 8, 11))
sketch11.addConstraint(Sketcher.Constraint("Parallel", 9, 12))
sketch11.addConstraint(Sketcher.Constraint("Parallel", 11, 14))
sketch11.addConstraint(Sketcher.Constraint("Parallel", 12, 15))
sketch11.addConstraint(Sketcher.Constraint("Parallel", 14, 17))
sketch11.addConstraint(Sketcher.Constraint("Parallel", 15, 18))
sketch11.addConstraint(Sketcher.Constraint("Parallel", 17, 20))
sketch11.addConstraint(Sketcher.Constraint("Parallel", 18, 21))
sketch11.addConstraint(Sketcher.Constraint("Parallel", 20, 23))
sketch11.addConstraint(Sketcher.Constraint("Horizontal", 2, 2, 5, 2))
sketch11.addConstraint(Sketcher.Constraint("Horizontal", 4, 2, 6, 2))
sketch11.addConstraint(Sketcher.Constraint("Horizontal", 5, 2, 8, 2))
sketch11.addConstraint(Sketcher.Constraint("Horizontal", 1, 2, 9, 2))
sketch11.addConstraint(Sketcher.Constraint("Horizontal", 8, 2, 11, 2))
sketch11.addConstraint(Sketcher.Constraint("Horizontal", 14, 2, 17, 2))
sketch11.addConstraint(Sketcher.Constraint("Horizontal", 16, 2, 18, 2))
sketch11.addConstraint(Sketcher.Constraint("Horizontal", 17, 2, 20, 2))
sketch11.addConstraint(Sketcher.Constraint("Horizontal", 13, 2, 21, 2))
sketch11.addConstraint(Sketcher.Constraint("Horizontal", 20, 2, 23, 2))
sketch11.addConstraint(Sketcher.Constraint("Vertical", 1, 2, 3, 2))
sketch11.addConstraint(Sketcher.Constraint("Vertical", 0, 2, 4, 2))
sketch11.addConstraint(Sketcher.Constraint("Vertical", 4, 2, 12, 2))
sketch11.addConstraint(Sketcher.Constraint("Vertical", 3, 2, 13, 2))
sketch11.addConstraint(Sketcher.Constraint("Vertical", 2, 2, 14, 2))
sketch11.addConstraint(Sketcher.Constraint("Vertical", 13, 2, 15, 2))
sketch11.addConstraint(Sketcher.Constraint("Vertical", 10, 2, 18, 2))
sketch11.addConstraint(Sketcher.Constraint("Vertical", 9, 2, 19, 2))
sketch11.addConstraint(Sketcher.Constraint("Equal", 4, 7))
sketch11.addConstraint(Sketcher.Constraint("Angle", 0, Q("60 deg")))
sketch11.addConstraint(Sketcher.Constraint("DistanceY", 2, 2, 1, 2, Q("3 mm")))
sketch11.addConstraint(Sketcher.Constraint("DistanceX", 6, 2, 3, 2, Q("60 mm")))
sketch11.addConstraint(Sketcher.Constraint("DistanceY", 0, 2, 12, 2, Q("90 mm")))
sketch11.addConstraint(Sketcher.Constraint("DistanceY", -1, 1, 0, 2, Q("15.5 mm")))
sketch11.addConstraint(Sketcher.Constraint("DistanceX", 1, 1, 1, 2, Q("3.464102 mm")))
sketch11.addConstraint(Sketcher.Constraint("DistanceX", -1, 1, 2, 2, Q("58.174102 mm")))
pocket7 = body.newObject("PartDesign::Pocket", "Pocket006")
pocket7.Profile = sketch11
pocket7.setExpression("Length", "Params.pocket7_length")
pocket7.Reversed = True

# Sketch on XY plane
sketch12 = body.newObject("Sketcher::SketchObject", "Sketch011")
sketch12.AttachmentSupport = (doc.getObject("XY_Plane"), [""])
sketch12.MapMode = "FlatFace"
sketch12.addGeometry(Part.Circle(V(32, 60.21, 0), V(0, 0, 1), 1.5), False)
sketch12.addConstraint(Sketcher.Constraint("Diameter", 0, Q("3 mm")))
sketch12.addConstraint(Sketcher.Constraint("DistanceX", -1, 1, 0, 3, Q("32 mm")))
sketch12.addConstraint(Sketcher.Constraint("DistanceY", -1, 1, 0, 3, Q("60.21 mm")))
sketch12.setExpression("Constraints[0]", "Params.sketch12_diameter")
pocket8 = body.newObject("PartDesign::Pocket", "Pocket007")
pocket8.Profile = sketch12
pocket8.Type = "ThroughAll"
pocket8.Reversed = True

doc.recompute()
